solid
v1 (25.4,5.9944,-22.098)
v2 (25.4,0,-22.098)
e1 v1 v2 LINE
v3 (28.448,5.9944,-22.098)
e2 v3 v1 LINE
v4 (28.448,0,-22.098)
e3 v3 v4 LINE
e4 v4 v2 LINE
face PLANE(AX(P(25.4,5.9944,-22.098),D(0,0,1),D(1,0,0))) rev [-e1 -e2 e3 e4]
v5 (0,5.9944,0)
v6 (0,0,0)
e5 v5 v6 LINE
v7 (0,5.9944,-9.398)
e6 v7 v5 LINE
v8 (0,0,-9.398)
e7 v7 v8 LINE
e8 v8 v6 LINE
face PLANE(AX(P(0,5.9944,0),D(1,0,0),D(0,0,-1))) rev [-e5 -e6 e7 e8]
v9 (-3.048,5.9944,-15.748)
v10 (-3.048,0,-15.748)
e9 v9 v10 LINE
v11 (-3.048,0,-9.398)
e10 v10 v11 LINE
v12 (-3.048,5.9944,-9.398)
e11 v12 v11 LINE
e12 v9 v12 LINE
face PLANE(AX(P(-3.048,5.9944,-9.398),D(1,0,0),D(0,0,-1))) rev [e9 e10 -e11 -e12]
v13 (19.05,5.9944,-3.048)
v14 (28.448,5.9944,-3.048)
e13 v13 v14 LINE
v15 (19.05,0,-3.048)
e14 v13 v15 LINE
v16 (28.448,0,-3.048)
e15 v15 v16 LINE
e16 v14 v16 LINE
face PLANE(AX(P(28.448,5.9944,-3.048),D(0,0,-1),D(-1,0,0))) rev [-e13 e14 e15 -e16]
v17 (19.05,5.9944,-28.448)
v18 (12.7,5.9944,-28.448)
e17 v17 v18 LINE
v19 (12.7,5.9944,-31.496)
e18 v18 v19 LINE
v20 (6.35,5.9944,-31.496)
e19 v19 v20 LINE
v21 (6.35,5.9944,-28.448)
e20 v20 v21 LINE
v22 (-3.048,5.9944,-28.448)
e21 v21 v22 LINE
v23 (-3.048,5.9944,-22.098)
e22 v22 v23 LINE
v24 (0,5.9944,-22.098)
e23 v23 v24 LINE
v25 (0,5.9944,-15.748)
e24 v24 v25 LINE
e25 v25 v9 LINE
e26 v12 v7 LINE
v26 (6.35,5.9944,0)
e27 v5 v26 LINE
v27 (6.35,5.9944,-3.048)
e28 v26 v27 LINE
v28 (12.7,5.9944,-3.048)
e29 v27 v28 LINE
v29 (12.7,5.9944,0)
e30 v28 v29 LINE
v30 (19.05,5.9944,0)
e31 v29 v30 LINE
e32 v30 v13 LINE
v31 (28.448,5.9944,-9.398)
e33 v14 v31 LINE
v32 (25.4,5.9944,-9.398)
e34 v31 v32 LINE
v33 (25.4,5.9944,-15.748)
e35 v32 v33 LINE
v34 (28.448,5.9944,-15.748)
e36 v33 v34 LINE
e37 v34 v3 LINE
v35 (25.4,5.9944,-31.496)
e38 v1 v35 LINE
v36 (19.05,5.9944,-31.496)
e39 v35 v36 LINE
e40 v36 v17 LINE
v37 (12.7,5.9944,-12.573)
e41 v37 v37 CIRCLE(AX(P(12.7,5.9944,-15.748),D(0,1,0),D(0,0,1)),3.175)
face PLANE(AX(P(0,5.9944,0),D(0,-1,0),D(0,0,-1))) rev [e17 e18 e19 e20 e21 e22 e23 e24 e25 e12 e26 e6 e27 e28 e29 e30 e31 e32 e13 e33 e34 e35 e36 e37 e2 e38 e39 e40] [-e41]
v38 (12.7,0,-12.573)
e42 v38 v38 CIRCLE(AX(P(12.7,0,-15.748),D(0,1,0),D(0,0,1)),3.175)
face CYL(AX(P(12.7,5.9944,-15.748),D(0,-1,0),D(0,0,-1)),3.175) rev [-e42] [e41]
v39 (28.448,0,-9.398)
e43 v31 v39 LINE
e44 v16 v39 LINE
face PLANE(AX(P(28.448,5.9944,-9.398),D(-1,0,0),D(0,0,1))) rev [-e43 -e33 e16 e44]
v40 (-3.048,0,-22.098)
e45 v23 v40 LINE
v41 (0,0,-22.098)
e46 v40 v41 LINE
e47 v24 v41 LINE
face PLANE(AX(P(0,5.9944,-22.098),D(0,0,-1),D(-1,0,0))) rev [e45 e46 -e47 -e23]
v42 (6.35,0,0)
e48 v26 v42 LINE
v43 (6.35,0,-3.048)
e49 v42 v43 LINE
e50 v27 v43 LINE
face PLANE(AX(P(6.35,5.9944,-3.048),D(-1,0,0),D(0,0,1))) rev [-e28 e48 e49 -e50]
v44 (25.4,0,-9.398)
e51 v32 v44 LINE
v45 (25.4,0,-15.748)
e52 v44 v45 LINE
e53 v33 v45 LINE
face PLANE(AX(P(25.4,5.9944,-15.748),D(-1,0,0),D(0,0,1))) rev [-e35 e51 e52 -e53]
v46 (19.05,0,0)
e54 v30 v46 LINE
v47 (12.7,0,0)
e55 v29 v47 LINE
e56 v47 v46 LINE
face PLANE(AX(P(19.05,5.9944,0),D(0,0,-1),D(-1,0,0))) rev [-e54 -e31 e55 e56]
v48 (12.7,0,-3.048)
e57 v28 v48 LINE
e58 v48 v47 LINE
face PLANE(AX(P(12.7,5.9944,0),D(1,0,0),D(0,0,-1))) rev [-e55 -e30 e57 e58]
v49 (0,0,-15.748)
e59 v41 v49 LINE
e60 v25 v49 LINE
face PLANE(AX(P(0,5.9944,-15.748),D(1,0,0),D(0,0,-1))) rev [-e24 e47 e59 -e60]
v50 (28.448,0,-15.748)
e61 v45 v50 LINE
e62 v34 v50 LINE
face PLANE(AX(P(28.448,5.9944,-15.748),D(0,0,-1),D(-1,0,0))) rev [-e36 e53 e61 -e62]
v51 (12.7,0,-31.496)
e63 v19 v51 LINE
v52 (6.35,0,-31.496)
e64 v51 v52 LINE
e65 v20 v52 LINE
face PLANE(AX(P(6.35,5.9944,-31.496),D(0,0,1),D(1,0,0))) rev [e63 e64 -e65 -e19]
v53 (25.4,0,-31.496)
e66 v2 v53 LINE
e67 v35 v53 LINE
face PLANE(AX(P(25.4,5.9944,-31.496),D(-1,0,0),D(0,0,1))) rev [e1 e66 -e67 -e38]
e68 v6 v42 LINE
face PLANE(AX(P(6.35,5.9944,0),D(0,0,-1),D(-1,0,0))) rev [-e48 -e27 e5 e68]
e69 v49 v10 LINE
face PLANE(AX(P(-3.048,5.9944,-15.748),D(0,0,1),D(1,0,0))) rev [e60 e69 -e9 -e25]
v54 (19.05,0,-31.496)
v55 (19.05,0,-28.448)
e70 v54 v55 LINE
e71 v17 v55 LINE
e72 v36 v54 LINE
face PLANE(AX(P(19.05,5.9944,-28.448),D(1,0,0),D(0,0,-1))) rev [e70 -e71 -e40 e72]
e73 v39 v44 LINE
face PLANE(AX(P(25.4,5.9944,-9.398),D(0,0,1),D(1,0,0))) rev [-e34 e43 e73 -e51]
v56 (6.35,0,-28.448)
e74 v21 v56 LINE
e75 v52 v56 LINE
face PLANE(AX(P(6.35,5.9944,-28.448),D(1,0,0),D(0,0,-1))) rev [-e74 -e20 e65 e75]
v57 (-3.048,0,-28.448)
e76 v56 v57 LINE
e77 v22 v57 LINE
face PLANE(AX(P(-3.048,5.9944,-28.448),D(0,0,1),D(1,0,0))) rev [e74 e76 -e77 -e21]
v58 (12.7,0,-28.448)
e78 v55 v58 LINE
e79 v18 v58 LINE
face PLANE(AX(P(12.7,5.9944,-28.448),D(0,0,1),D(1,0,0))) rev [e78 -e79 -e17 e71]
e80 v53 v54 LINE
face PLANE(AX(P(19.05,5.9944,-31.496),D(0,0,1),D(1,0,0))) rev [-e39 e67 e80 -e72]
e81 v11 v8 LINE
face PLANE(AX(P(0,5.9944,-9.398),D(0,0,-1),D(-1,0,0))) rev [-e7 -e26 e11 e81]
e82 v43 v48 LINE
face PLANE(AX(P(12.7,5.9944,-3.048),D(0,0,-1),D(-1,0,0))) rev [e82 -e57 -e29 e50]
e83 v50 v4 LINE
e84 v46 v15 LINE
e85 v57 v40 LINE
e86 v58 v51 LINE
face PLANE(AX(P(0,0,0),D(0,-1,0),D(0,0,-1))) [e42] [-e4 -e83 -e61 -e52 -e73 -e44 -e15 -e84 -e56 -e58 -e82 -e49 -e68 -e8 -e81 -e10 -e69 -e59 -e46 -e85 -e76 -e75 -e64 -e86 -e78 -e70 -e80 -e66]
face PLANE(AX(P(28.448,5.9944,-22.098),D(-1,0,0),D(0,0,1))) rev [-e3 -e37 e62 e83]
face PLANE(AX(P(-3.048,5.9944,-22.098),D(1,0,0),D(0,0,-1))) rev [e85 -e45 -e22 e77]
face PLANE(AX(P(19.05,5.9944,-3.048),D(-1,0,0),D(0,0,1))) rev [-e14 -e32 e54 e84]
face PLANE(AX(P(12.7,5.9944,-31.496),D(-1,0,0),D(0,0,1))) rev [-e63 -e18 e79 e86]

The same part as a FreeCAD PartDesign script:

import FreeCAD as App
import Part
import Sketcher

V = App.Vector
Q = App.Units.Quantity

doc = App.newDocument("Part")
body = doc.addObject("PartDesign::Body", "Body")

# Sketch on XZ plane
sketch1 = body.newObject("Sketcher::SketchObject", "Sketch")
sketch1.AttachmentSupport = (doc.getObject("XZ_Plane"), [""])
sketch1.MapMode = "FlatFace"
sketch1.addGeometry(Part.LineSegment(V(19.1, -3, 0), V(28.4, -3, 0)), False)
sketch1.addGeometry(Part.LineSegment(V(28.4, -3, 0), V(28.4, -9.4, 0)), False)
sketch1.addGeometry(Part.LineSegment(V(28.4, -9.4, 0), V(25.4, -9.4, 0)), False)
sketch1.addGeometry(Part.LineSegment(V(25.4, -9.4, 0), V(25.4, -15.7, 0)), False)
sketch1.addGeometry(Part.LineSegment(V(25.4, -15.7, 0), V(28.4, -15.7, 0)), False)
sketch1.addGeometry(Part.LineSegment(V(28.4, -15.7, 0), V(28.4, -22.1, 0)), False)
sketch1.addGeometry(Part.LineSegment(V(28.4, -22.1, 0), V(25.4, -22.1, 0)), False)
sketch1.addGeometry(Part.LineSegment(V(25.4, -22.1, 0), V(25.4, -31.5, 0)), False)
sketch1.addGeometry(Part.LineSegment(V(25.4, -31.5, 0), V(19.1, -31.5, 0)), False)
sketch1.addGeometry(Part.LineSegment(V(19.1, -31.5, 0), V(19.1, -28.4, 0)), False)
sketch1.addGeometry(Part.LineSegment(V(19.1, -28.4, 0), V(12.7, -28.4, 0)), False)
sketch1.addGeometry(Part.LineSegment(V(12.7, -28.4, 0), V(12.7, -31.5, 0)), False)
sketch1.addGeometry(Part.LineSegment(V(12.7, -31.5, 0), V(6.3, -31.5, 0)), False)
sketch1.addGeometry(Part.LineSegment(V(6.3, -31.5, 0), V(6.3, -28.4, 0)), False)
sketch1.addGeometry(Part.LineSegment(V(6.3, -28.4, 0), V(-3, -28.4, 0)), False)
sketch1.addGeometry(Part.LineSegment(V(-3, -28.4, 0), V(-3, -22.1, 0)), False)
sketch1.addGeometry(Part.LineSegment(V(-3, -22.1, 0), V(0, -22.1, 0)), False)
sketch1.addGeometry(Part.LineSegment(V(0, -22.1, 0), V(0, -15.7, 0)), False)
sketch1.addGeometry(Part.LineSegment(V(0, -15.7, 0), V(-3, -15.7, 0)), False)
sketch1.addGeometry(Part.LineSegment(V(-3, -15.7, 0), V(-3, -9.4, 0)), False)
sketch1.addGeometry(Part.LineSegment(V(-3, -9.4, 0), V(0, -9.4, 0)), False)
sketch1.addGeometry(Part.LineSegment(V(0, -9.4, 0), V(0, 0, 0)), False)
sketch1.addGeometry(Part.LineSegment(V(0, 0, 0), V(6.3, 0, 0)), False)
sketch1.addGeometry(Part.LineSegment(V(6.3, 0, 0), V(6.3, -3, 0)), False)
sketch1.addGeometry(Part.LineSegment(V(6.3, -3, 0), V(12.7, -3, 0)), False)
sketch1.addGeometry(Part.LineSegment(V(12.7, -3, 0), V(12.7, 0, 0)), False)
sketch1.addGeometry(Part.LineSegment(V(12.7, 0, 0), V(19.1, 0, 0)), False)
sketch1.addGeometry(Part.LineSegment(V(19.1, 0, 0), V(19.1, -3, 0)), False)
sketch1.addGeometry(Part.Circle(V(12.7, -15.7, 0), V(0, 0, 1), 3.2), False)
sketch1.addConstraint(Sketcher.Constraint("Coincident", 0, 2, 1, 1))
sketch1.addConstraint(Sketcher.Constraint("Coincident", 1, 2, 2, 1))
sketch1.addConstraint(Sketcher.Constraint("Coincident", 2, 2, 3, 1))
sketch1.addConstraint(Sketcher.Constraint("Coincident", 3, 2, 4, 1))
sketch1.addConstraint(Sketcher.Constraint("Coincident", 4, 2, 5, 1))
sketch1.addConstraint(Sketcher.Constraint("Coincident", 5, 2, 6, 1))
sketch1.addConstraint(Sketcher.Constraint("Coincident", 6, 2, 7, 1))
sketch1.addConstraint(Sketcher.Constraint("Coincident", 7, 2, 8, 1))
sketch1.addConstraint(Sketcher.Constraint("Coincident", 8, 2, 9, 1))
sketch1.addConstraint(Sketcher.Constraint("Coincident", 9, 2, 10, 1))
sketch1.addConstraint(Sketcher.Constraint("Coincident", 10, 2, 11, 1))
sketch1.addConstraint(Sketcher.Constraint("Coincident", 11, 2, 12, 1))
sketch1.addConstraint(Sketcher.Constraint("Coincident", 12, 2, 13, 1))
sketch1.addConstraint(Sketcher.Constraint("Coincident", 13, 2, 14, 1))
sketch1.addConstraint(Sketcher.Constraint("Coincident", 14, 2, 15, 1))
sketch1.addConstraint(Sketcher.Constraint("Coincident", 15, 2, 16, 1))
sketch1.addConstraint(Sketcher.Constraint("Coincident", 16, 2, 17, 1))
sketch1.addConstraint(Sketcher.Constraint("Coincident", 17, 2, 18, 1))
sketch1.addConstraint(Sketcher.Constraint("Coincident", 18, 2, 19, 1))
sketch1.addConstraint(Sketcher.Constraint("Coincident", 19, 2, 20, 1))
sketch1.addConstraint(Sketcher.Constraint("Coincident", 20, 2, 21, 1))
sketch1.addConstraint(Sketcher.Constraint("Coincident", 21, 2, 22, 1))
sketch1.addConstraint(Sketcher.Constraint("Coincident", 22, 2, 23, 1))
sketch1.addConstraint(Sketcher.Constraint("Coincident", 23, 2, 24, 1))
sketch1.addConstraint(Sketcher.Constraint("Coincident", 24, 2, 25, 1))
sketch1.addConstraint(Sketcher.Constraint("Coincident", 25, 2, 26, 1))
sketch1.addConstraint(Sketcher.Constraint("Coincident", 26, 2, 27, 1))
sketch1.addConstraint(Sketcher.Constraint("Coincident", 27, 2, 0, 1))
sketch1.addConstraint(Sketcher.Constraint("Horizontal", 0))
sketch1.addConstraint(Sketcher.Constraint("Vertical", 1))
sketch1.addConstraint(Sketcher.Constraint("Horizontal", 2))
sketch1.addConstraint(Sketcher.Constraint("Vertical", 3))
sketch1.addConstraint(Sketcher.Constraint("Horizontal", 4))
sketch1.addConstraint(Sketcher.Constraint("Vertical", 5))
sketch1.addConstraint(Sketcher.Constraint("Horizontal", 6))
sketch1.addConstraint(Sketcher.Constraint("Vertical", 7))
sketch1.addConstraint(Sketcher.Constraint("Horizontal", 8))
sketch1.addConstraint(Sketcher.Constraint("Vertical", 9))
sketch1.addConstraint(Sketcher.Constraint("Horizontal", 10))
sketch1.addConstraint(Sketcher.Constraint("Vertical", 11))
sketch1.addConstraint(Sketcher.Constraint("Horizontal", 12))
sketch1.addConstraint(Sketcher.Constraint("Vertical", 13))
sketch1.addConstraint(Sketcher.Constraint("Horizontal", 14))
sketch1.addConstraint(Sketcher.Constraint("Vertical", 15))
sketch1.addConstraint(Sketcher.Constraint("Horizontal", 16))
sketch1.addConstraint(Sketcher.Constraint("Vertical", 17))
sketch1.addConstraint(Sketcher.Constraint("Horizontal", 18))
sketch1.addConstraint(Sketcher.Constraint("Vertical", 19))
sketch1.addConstraint(Sketcher.Constraint("Horizontal", 20))
sketch1.addConstraint(Sketcher.Constraint("Vertical", 21))
sketch1.addConstraint(Sketcher.Constraint("Horizontal", 22))
sketch1.addConstraint(Sketcher.Constraint("Vertical", 23))
sketch1.addConstraint(Sketcher.Constraint("Horizontal", 24))
sketch1.addConstraint(Sketcher.Constraint("Vertical", 25))
sketch1.addConstraint(Sketcher.Constraint("Horizontal", 26))
sketch1.addConstraint(Sketcher.Constraint("Vertical", 27))
sketch1.addConstraint(Sketcher.Constraint("Coincident", 21, 2, -1, 1))
sketch1.addConstraint(Sketcher.Constraint("PointOnObject", 16, 2, -2))
sketch1.addConstraint(Sketcher.Constraint("PointOnObject", 25, 2, -1))
sketch1.addConstraint(Sketcher.Constraint("Horizontal", 28, 3, 3, 2))
sketch1.addConstraint(Sketcher.Constraint("Horizontal", 8, 2, 11, 2))
sketch1.addConstraint(Sketcher.Constraint("Horizontal", 10, 2, 13, 2))
sketch1.addConstraint(Sketcher.Constraint("Horizontal", 6, 2, 15, 2))
sketch1.addConstraint(Sketcher.Constraint("Horizontal", 4, 2, 17, 2))
sketch1.addConstraint(Sketcher.Constraint("Horizontal", 2, 2, 19, 2))
sketch1.addConstraint(Sketcher.Constraint("Horizontal", 0, 2, 23, 2))
sketch1.addConstraint(Sketcher.Constraint("Vertical", 1, 2, 4, 2))
sketch1.addConstraint(Sketcher.Constraint("Vertical", 3, 2, 6, 2))
sketch1.addConstraint(Sketcher.Constraint("Vertical", 28, 3, 10, 2))
sketch1.addConstraint(Sketcher.Constraint("Vertical", 15, 2, 18, 2))
sketch1.addConstraint(Sketcher.Constraint("Vertical", 13, 2, 22, 2))
sketch1.addConstraint(Sketcher.Constraint("Vertical", 11, 2, 24, 2))
sketch1.addConstraint(Sketcher.Constraint("Vertical", 9, 2, 26, 2))
sketch1.addConstraint(Sketcher.Constraint("Equal", 8, 10))
sketch1.addConstraint(Sketcher.Constraint("Equal", 10, 12))
sketch1.addConstraint(Sketcher.Constraint("Equal", 0, 14))
sketch1.addConstraint(Sketcher.Constraint("Equal", 6, 16))
sketch1.addConstraint(Sketcher.Constraint("Equal", 26, 1))
sketch1.addConstraint(Sketcher.Constraint("Equal", 1, 3))
sketch1.addConstraint(Sketcher.Constraint("Equal", 3, 5))
sketch1.addConstraint(Sketcher.Constraint("Equal", 14, 7))
sketch1.addConstraint(Sketcher.Constraint("Equal", 20, 9))
sketch1.addConstraint(Sketcher.Constraint("Equal", 7, 21))
sketch1.addConstraint(Sketcher.Constraint("Diameter", 28, Q("0.25 in")))
sketch1.addConstraint(Sketcher.Constraint("DistanceX", -1, 1, 2, 2, Q("1 in")))
sketch1.addConstraint(Sketcher.Constraint("DistanceX", 0, 1, 0, 2, Q("0.37 in")))
pad1 = body.newObject("PartDesign::Pad", "Pad")
pad1.Profile = sketch1
pad1.Length = Q("0.236 in")
pad1.Reversed = True

doc.recompute()
